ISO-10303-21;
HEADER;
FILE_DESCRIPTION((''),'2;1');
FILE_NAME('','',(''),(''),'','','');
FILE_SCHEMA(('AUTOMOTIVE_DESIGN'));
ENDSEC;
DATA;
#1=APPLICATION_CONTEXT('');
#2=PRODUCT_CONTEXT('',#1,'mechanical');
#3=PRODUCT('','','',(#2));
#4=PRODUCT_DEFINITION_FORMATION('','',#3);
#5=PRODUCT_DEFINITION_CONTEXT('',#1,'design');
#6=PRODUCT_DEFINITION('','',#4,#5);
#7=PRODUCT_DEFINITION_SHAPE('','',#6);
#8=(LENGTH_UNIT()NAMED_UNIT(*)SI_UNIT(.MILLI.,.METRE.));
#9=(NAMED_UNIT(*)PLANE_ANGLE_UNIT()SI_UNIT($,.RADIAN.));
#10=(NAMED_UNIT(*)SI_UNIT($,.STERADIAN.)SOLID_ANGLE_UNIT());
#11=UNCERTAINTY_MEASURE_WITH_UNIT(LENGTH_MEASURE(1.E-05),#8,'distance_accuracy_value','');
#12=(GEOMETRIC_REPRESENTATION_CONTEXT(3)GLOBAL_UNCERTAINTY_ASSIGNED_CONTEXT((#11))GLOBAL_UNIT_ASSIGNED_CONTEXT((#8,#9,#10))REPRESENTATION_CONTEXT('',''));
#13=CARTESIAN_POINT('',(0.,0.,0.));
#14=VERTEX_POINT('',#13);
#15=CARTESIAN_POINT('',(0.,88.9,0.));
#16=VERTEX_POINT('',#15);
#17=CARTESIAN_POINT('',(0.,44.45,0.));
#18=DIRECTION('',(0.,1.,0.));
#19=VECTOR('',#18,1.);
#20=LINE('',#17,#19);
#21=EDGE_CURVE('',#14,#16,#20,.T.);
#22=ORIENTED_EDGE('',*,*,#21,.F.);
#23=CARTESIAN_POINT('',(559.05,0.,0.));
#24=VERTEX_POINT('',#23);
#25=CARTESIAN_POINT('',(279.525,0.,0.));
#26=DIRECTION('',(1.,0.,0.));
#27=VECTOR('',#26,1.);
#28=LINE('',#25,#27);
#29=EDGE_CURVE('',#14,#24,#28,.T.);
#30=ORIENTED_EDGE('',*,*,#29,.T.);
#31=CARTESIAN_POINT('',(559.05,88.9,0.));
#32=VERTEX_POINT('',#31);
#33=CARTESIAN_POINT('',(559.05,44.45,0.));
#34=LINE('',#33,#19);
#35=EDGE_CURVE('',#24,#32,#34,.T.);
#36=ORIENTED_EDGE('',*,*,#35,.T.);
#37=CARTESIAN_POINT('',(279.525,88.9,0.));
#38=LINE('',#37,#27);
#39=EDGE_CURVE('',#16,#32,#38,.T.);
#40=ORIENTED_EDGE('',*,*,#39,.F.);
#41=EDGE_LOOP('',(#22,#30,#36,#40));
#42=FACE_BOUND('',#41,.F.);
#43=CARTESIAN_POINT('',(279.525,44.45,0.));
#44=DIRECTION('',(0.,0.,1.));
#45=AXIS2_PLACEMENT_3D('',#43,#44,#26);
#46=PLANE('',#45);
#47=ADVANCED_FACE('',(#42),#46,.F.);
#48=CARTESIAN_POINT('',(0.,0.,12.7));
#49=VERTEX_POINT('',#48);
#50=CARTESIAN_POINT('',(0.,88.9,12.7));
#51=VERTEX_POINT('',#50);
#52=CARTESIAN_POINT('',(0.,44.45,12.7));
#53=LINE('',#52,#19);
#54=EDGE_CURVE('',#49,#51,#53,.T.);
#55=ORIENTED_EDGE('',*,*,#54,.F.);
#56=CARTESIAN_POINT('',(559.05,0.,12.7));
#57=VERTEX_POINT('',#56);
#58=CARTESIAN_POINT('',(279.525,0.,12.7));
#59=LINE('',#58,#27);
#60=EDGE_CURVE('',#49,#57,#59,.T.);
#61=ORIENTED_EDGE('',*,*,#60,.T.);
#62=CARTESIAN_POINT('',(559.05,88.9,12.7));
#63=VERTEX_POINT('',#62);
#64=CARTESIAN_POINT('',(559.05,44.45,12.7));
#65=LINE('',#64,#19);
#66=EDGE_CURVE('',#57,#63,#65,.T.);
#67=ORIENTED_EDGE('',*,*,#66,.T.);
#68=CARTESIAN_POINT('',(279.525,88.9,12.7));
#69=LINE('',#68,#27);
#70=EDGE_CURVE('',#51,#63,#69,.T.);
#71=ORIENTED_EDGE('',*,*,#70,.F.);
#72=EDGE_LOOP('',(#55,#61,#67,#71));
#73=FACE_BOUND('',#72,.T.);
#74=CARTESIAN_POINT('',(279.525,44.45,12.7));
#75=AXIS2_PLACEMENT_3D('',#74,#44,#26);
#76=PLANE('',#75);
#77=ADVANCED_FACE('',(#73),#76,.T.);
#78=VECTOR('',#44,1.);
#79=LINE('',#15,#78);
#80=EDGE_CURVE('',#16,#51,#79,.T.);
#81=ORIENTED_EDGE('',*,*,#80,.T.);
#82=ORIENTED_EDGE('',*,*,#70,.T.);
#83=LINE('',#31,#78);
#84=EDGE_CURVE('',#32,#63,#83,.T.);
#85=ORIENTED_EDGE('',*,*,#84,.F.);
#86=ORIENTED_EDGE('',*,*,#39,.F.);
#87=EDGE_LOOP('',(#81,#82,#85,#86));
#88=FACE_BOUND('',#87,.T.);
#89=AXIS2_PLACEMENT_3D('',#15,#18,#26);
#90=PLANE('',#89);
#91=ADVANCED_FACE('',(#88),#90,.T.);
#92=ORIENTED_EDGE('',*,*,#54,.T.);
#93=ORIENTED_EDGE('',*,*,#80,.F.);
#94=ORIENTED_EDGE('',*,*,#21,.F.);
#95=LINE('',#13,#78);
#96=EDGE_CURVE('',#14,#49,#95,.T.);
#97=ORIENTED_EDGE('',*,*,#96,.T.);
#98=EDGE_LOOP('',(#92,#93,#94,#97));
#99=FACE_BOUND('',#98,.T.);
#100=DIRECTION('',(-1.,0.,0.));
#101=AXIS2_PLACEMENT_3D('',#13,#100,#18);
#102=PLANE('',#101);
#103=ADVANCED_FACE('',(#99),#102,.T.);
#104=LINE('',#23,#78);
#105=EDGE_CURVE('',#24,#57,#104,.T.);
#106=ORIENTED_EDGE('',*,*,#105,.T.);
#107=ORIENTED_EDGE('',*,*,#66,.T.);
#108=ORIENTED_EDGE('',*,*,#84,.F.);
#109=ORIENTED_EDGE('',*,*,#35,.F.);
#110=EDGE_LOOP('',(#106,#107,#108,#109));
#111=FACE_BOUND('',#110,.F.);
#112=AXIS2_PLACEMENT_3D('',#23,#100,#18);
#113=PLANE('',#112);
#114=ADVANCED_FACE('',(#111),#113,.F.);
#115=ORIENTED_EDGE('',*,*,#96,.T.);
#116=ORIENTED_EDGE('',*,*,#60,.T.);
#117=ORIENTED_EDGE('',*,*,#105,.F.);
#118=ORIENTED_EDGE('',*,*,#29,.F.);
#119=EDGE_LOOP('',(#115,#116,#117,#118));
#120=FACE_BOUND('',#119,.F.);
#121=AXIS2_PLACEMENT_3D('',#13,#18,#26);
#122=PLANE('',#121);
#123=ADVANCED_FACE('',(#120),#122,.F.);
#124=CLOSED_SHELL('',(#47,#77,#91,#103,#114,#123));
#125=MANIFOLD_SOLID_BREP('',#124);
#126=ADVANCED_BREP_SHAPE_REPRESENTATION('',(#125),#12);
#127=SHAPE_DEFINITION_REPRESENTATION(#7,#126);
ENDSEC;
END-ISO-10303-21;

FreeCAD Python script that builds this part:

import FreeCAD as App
import Part
import Sketcher
Q = App.Units.Quantity


def add_polygon(sketch, points):
    """Adds a closed chain of lines whose ends are joined by coincident constraints."""
    first, n = sketch.GeometryCount, len(points)
    for a, b in zip(points, points[1:] + points[:1]):
        sketch.addGeometry(Part.LineSegment(App.Vector(*a, 0), App.Vector(*b, 0)), False)
    for i in range(n):
        sketch.addConstraint(Sketcher.Constraint("Coincident", first + i, 2, first + (i + 1) % n, 1))

doc = App.newDocument("Part")
params = doc.addObject("Spreadsheet::Sheet", "Params")
for row, (alias, value) in enumerate([
    ("sketch1_height", "3.5 in"),
    ("pad1_length", "0.5 in"),
], start=1):
    params.set(f"A{row}", alias)
    params.set(f"B{row}", "=" + value)
    params.setAlias(f"B{row}", alias)

body = doc.addObject("PartDesign::Body", "Body")

sketch1 = body.newObject("Sketcher::SketchObject", "Sketch")
sketch1.AttachmentSupport = (doc.getObject("XY_Plane"), [""])
sketch1.MapMode = "FlatFace"
add_polygon(sketch1, [(0, 88.9), (0, 0), (559.05, 0), (559.05, 88.9)])
sketch1.addConstraint([
    Sketcher.Constraint("Vertical", 0),
    Sketcher.Constraint("Horizontal", 1),
    Sketcher.Constraint("Vertical", 2),
    Sketcher.Constraint("Horizontal", 3),
    Sketcher.Constraint("Coincident", 0, 2, -1, 1),
    Sketcher.Constraint("DistanceY", 0, 2, 0, 1, Q("3.5 in")),
    Sketcher.Constraint("DistanceX", 1, 1, 1, 2, 559.05),
])
sketch1.setExpression("Constraints[9]", "Params.sketch1_height")
pad1 = body.newObject("PartDesign::Pad", "Pad")
pad1.Profile = sketch1
pad1.setExpression("Length", "Params.pad1_length")

doc.recompute()
